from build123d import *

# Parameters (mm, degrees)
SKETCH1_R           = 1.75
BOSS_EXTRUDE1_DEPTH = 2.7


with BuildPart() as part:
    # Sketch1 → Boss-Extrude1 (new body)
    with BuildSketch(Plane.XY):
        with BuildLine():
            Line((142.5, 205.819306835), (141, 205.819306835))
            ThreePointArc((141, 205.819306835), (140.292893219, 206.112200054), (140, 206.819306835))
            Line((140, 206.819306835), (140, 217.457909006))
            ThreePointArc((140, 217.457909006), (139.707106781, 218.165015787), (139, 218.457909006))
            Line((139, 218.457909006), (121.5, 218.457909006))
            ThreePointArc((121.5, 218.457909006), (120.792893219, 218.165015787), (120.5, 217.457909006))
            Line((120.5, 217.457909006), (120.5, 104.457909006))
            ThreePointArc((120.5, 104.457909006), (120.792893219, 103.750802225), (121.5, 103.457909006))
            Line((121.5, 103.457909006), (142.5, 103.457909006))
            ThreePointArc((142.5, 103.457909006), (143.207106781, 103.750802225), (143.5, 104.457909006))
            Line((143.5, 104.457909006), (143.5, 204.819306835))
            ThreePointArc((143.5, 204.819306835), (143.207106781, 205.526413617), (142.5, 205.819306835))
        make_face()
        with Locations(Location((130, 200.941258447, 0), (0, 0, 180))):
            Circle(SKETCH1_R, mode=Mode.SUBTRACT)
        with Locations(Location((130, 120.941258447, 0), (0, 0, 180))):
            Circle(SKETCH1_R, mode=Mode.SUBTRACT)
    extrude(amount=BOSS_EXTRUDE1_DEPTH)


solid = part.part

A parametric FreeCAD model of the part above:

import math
import FreeCAD as App
import Part
import Sketcher
from FreeCAD import Vector
Q = App.Units.Quantity

doc = App.newDocument("Part")
body = doc.addObject("PartDesign::Body", "Body")

sketch1 = body.newObject("Sketcher::SketchObject", "Sketch")
sketch1.AttachmentSupport = (doc.getObject("XY_Plane"), [""])
sketch1.MapMode = "FlatFace"
sketch1.addGeometry([
    Part.LineSegment(Vector(142.5, 205.8, 0), Vector(141, 205.8, 0)),
    Part.ArcOfCircle(Part.Circle(Vector(141, 206.8, 0), Vector(0, 0, 1), 1), math.radians(-180), math.radians(-90)),
    Part.LineSegment(Vector(140, 206.8, 0), Vector(140, 217.5, 0)),
    Part.ArcOfCircle(Part.Circle(Vector(139, 217.5, 0), Vector(0, 0, 1), 1), math.radians(0), math.radians(90)),
    Part.LineSegment(Vector(139, 218.5, 0), Vector(121.5, 218.5, 0)),
    Part.ArcOfCircle(Part.Circle(Vector(121.5, 217.5, 0), Vector(0, 0, 1), 1), math.radians(90), math.radians(180)),
    Part.LineSegment(Vector(120.5, 217.5, 0), Vector(120.5, 104.5, 0)),
    Part.ArcOfCircle(Part.Circle(Vector(121.5, 104.5, 0), Vector(0, 0, 1), 1), math.radians(-180), math.radians(-90)),
    Part.LineSegment(Vector(121.5, 103.5, 0), Vector(142.5, 103.5, 0)),
    Part.ArcOfCircle(Part.Circle(Vector(142.5, 104.5, 0), Vector(0, 0, 1), 1), math.radians(-90), math.radians(0)),
    Part.LineSegment(Vector(143.5, 104.5, 0), Vector(143.5, 204.8, 0)),
    Part.ArcOfCircle(Part.Circle(Vector(142.5, 204.8, 0), Vector(0, 0, 1), 1), math.radians(0), math.radians(90)),
    Part.Circle(Vector(130, 120.9, 0), Vector(0, 0, 1), 1.8),
    Part.Circle(Vector(130, 200.9, 0), Vector(0, 0, 1), 1.8),
], False)
sketch1.addConstraint([
    Sketcher.Constraint("Tangent", 0, 2, 1, 2),
    Sketcher.Constraint("Tangent", 1, 1, 2, 1),
    Sketcher.Constraint("Tangent", 2, 2, 3, 1),
    Sketcher.Constraint("Tangent", 3, 2, 4, 1),
    Sketcher.Constraint("Tangent", 4, 2, 5, 1),
    Sketcher.Constraint("Tangent", 5, 2, 6, 1),
    Sketcher.Constraint("Tangent", 6, 2, 7, 1),
    Sketcher.Constraint("Tangent", 7, 2, 8, 1),
    Sketcher.Constraint("Tangent", 8, 2, 9, 1),
    Sketcher.Constraint("Tangent", 9, 2, 10, 1),
    Sketcher.Constraint("Tangent", 10, 2, 11, 1),
    Sketcher.Constraint("Tangent", 11, 2, 0, 1),
    Sketcher.Constraint("Horizontal", 0),
    Sketcher.Constraint("Vertical", 2),
    Sketcher.Constraint("Horizontal", 4),
    Sketcher.Constraint("Vertical", 6),
    Sketcher.Constraint("Horizontal", 8),
    Sketcher.Constraint("Vertical", 10),
    Sketcher.Constraint("Equal", 1, 3),
    Sketcher.Constraint("Equal", 3, 5),
    Sketcher.Constraint("Equal", 5, 7),
    Sketcher.Constraint("Equal", 7, 9),
    Sketcher.Constraint("Equal", 9, 11),
    Sketcher.Constraint("Equal", 12, 13),
    Sketcher.Constraint("Vertical", 12, 3, 13, 3),
    Sketcher.Constraint("Radius", 1, Q("1 mm")),
    Sketcher.Constraint("Diameter", 12, Q("3.5 mm")),
    Sketcher.Constraint("DistanceX", 8, 1, 8, 2, Q("21 mm")),
    Sketcher.Constraint("DistanceY", 6, 2, 6, 1, Q("113 mm")),
    Sketcher.Constraint("DistanceX", 0, 2, 0, 1, Q("1.5 mm")),
    Sketcher.Constraint("DistanceX", -1, 1, 1, 3, Q("141 mm")),
    Sketcher.Constraint("DistanceX", -1, 1, 12, 3, Q("130 mm")),
    Sketcher.Constraint("DistanceY", 12, 3, 13, 3, Q("80 mm")),
    Sketcher.Constraint("DistanceY", 2, 1, 2, 2, Q("10.638602 mm")),
    Sketcher.Constraint("DistanceY", -1, 1, 3, 3, Q("217.457909 mm")),
    Sketcher.Constraint("DistanceY", -1, 1, 12, 3, Q("120.941258 mm")),
])
pad1 = body.newObject("PartDesign::Pad", "Pad")
pad1.Profile = sketch1
pad1.Length = 2.7

doc.recompute()
